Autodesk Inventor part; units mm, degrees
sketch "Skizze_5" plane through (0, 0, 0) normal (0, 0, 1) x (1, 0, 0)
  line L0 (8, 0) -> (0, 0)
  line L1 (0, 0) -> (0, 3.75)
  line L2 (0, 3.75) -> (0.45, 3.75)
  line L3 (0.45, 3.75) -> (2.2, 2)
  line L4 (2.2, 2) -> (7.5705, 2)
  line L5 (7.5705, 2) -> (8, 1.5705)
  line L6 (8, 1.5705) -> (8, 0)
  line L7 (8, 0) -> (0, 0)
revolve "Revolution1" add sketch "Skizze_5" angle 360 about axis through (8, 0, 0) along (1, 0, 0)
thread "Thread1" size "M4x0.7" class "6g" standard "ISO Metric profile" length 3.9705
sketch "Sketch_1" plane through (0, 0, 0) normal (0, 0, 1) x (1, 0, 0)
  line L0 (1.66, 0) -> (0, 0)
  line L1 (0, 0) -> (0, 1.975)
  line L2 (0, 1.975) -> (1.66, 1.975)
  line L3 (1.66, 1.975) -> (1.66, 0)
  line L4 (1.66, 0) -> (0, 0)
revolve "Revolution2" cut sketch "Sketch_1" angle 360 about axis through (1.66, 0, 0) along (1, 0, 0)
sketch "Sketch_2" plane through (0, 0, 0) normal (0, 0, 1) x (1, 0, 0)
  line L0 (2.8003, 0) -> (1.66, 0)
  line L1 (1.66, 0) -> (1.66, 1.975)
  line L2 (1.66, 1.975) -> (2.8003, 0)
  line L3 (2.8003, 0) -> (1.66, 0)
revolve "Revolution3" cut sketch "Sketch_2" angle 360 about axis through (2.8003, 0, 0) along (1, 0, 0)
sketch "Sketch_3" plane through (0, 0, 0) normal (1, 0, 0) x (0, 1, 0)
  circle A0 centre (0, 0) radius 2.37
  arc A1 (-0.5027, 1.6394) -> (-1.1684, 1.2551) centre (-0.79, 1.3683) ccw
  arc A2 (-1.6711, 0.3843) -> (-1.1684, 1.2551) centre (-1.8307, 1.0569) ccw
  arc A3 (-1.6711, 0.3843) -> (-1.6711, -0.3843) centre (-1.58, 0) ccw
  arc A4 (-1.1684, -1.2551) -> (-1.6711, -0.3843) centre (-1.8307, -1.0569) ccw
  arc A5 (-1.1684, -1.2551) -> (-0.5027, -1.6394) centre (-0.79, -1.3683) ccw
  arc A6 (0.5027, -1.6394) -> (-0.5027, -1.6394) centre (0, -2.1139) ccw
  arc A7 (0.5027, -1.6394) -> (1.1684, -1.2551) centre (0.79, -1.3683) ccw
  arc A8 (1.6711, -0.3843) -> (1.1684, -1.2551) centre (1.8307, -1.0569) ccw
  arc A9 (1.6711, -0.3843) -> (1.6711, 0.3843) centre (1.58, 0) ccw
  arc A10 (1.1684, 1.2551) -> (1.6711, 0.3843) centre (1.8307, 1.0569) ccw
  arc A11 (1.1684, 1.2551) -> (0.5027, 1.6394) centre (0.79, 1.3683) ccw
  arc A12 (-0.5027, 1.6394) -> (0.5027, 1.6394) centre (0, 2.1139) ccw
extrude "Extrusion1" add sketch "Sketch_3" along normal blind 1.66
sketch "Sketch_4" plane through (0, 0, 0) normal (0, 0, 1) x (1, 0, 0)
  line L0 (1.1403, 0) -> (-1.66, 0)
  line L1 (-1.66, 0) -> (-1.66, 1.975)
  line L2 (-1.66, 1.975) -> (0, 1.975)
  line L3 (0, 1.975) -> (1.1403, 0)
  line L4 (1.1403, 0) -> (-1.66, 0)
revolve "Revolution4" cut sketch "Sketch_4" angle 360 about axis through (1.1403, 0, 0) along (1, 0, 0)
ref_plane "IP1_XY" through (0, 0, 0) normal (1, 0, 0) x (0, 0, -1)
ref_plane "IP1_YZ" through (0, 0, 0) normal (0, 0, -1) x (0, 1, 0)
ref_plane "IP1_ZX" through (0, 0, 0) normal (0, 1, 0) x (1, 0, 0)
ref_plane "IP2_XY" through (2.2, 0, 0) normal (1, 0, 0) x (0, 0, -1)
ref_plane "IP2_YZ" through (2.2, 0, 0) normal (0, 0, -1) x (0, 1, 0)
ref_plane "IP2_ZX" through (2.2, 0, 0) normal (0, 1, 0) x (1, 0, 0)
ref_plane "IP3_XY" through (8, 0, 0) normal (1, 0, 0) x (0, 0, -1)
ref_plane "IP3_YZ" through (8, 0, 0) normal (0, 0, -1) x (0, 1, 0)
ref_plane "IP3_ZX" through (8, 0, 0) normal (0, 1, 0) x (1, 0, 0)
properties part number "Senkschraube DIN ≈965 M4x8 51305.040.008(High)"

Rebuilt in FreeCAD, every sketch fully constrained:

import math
import FreeCAD as App
import Part
import Sketcher

V = App.Vector
Q = App.Units.Quantity


def add_polygon(sketch, points):
    """Adds a closed chain of lines whose ends are joined by coincident constraints."""
    first, n = sketch.GeometryCount, len(points)
    for a, b in zip(points, points[1:] + points[:1]):
        sketch.addGeometry(Part.LineSegment(App.Vector(*a, 0), App.Vector(*b, 0)), False)
    for i in range(n):
        sketch.addConstraint(Sketcher.Constraint("Coincident", first + i, 2, first + (i + 1) % n, 1))

doc = App.newDocument("Part")
body = doc.addObject("PartDesign::Body", "Body")

# Sketch on XY plane
sketch1 = doc.addObject("Sketcher::SketchObject", "Sketch")
body.addObject(sketch1)
sketch1.AttachmentSupport = (doc.XY_Plane, [""])
sketch1.MapMode = "FlatFace"
add_polygon(sketch1, [(0, 0), (8, 0), (8, 1.57), (7.57, 2), (2.2, 2), (0.45, 3.75), (0, 3.75)])  # lines 0-6
sketch1.addConstraint(Sketcher.Constraint("Horizontal", 0))
sketch1.addConstraint(Sketcher.Constraint("Vertical", 1))
sketch1.addConstraint(Sketcher.Constraint("Horizontal", 3))
sketch1.addConstraint(Sketcher.Constraint("Horizontal", 5))
sketch1.addConstraint(Sketcher.Constraint("Vertical", 6))
sketch1.addConstraint(Sketcher.Constraint("Coincident", 6, 2, -1, 1))
sketch1.addConstraint(Sketcher.Constraint("Parallel", 2, 4))
sketch1.addConstraint(Sketcher.Constraint("DistanceX", 0, 1, 0, 2, 8.0))
sketch1.addConstraint(Sketcher.Constraint("Angle", 2, Q("135 deg")))
sketch1.addConstraint(Sketcher.Constraint("DistanceY", -1, 1, 2, 2, 2.0))
sketch1.addConstraint(Sketcher.Constraint("DistanceX", 5, 2, 5, 1, 0.45))
sketch1.addConstraint(Sketcher.Constraint("DistanceY", 6, 2, 6, 1, 3.75))
sketch1.addConstraint(Sketcher.Constraint("DistanceX", 3, 2, 3, 1, 5.3705))
revolution = doc.addObject("PartDesign::Revolution", "Revolution")
body.addObject(revolution)
revolution.Profile = sketch1
revolution.ReferenceAxis = (sketch1, ["H_Axis"])
revolution.Angle = 360

# Sketch on XY plane
sketch2 = doc.addObject("Sketcher::SketchObject", "Sketch001")
body.addObject(sketch2)
sketch2.AttachmentSupport = (doc.XY_Plane, [""])
sketch2.MapMode = "FlatFace"
add_polygon(sketch2, [(0, 0), (1.7, 0), (1.7, 2), (0, 2)])  # lines 0-3
sketch2.addConstraint(Sketcher.Constraint("Horizontal", 0))
sketch2.addConstraint(Sketcher.Constraint("Vertical", 1))
sketch2.addConstraint(Sketcher.Constraint("Horizontal", 2))
sketch2.addConstraint(Sketcher.Constraint("Vertical", 3))
sketch2.addConstraint(Sketcher.Constraint("Coincident", 3, 2, -1, 1))
sketch2.addConstraint(Sketcher.Constraint("DistanceX", 0, 1, 0, 2, 1.66))
sketch2.addConstraint(Sketcher.Constraint("DistanceY", 1, 1, 1, 2, 1.975))
groove = doc.addObject("PartDesign::Groove", "Groove")
body.addObject(groove)
groove.Profile = sketch2
groove.ReferenceAxis = (sketch2, ["H_Axis"])
groove.Angle = 360

# Sketch on XY plane
sketch3 = doc.addObject("Sketcher::SketchObject", "Sketch002")
body.addObject(sketch3)
sketch3.AttachmentSupport = (doc.XY_Plane, [""])
sketch3.MapMode = "FlatFace"
add_polygon(sketch3, [(1.7, 0), (2.8, 0), (1.7, 2)])  # lines 0-2
sketch3.addConstraint(Sketcher.Constraint("Horizontal", 0))
sketch3.addConstraint(Sketcher.Constraint("Vertical", 2))
sketch3.addConstraint(Sketcher.Constraint("PointOnObject", 0, 2, -1))
sketch3.addConstraint(Sketcher.Constraint("Angle", 1, Q("120.0007 deg")))
sketch3.addConstraint(Sketcher.Constraint("DistanceY", 2, 2, 2, 1, 1.975))
sketch3.addConstraint(Sketcher.Constraint("DistanceX", -1, 1, 1, 2, 1.66))
groove2 = doc.addObject("PartDesign::Groove", "Groove001")
body.addObject(groove2)
groove2.Profile = sketch3
groove2.ReferenceAxis = (sketch3, ["H_Axis"])
groove2.Angle = 360

# Sketch on YZ plane
sketch4 = doc.addObject("Sketcher::SketchObject", "Sketch003")
body.addObject(sketch4)
sketch4.AttachmentSupport = (doc.YZ_Plane, [""])
sketch4.MapMode = "FlatFace"
sketch4.addGeometry(Part.Circle(V(0, 0, 0), V(0, 0, 1), 2.37), False)
sketch4.addGeometry(Part.ArcOfCircle(Part.Circle(V(-0.79, 1.37, 0), V(0, 0, 1), 0.4), math.radians(43), math.radians(197)), False)
sketch4.addGeometry(Part.ArcOfCircle(Part.Circle(V(0, 2.11, 0), V(0, 0, 1), 0.69), math.radians(-137), math.radians(-43)), False)
sketch4.addGeometry(Part.ArcOfCircle(Part.Circle(V(0.79, 1.37, 0), V(0, 0, 1), 0.39), math.radians(-17), math.radians(137)), False)
sketch4.addGeometry(Part.ArcOfCircle(Part.Circle(V(1.83, 1.06, 0), V(0, 0, 1), 0.69), math.radians(163), math.radians(257)), False)
sketch4.addGeometry(Part.ArcOfCircle(Part.Circle(V(1.58, 0, 0), V(0, 0, 1), 0.39), math.radians(-77), math.radians(77)), False)
sketch4.addGeometry(Part.ArcOfCircle(Part.Circle(V(1.83, -1.06, 0), V(0, 0, 1), 0.69), math.radians(103), math.radians(197)), False)
sketch4.addGeometry(Part.ArcOfCircle(Part.Circle(V(0.79, -1.37, 0), V(0, 0, 1), 0.4), math.radians(-137), math.radians(17)), False)
sketch4.addGeometry(Part.ArcOfCircle(Part.Circle(V(0, -2.11, 0), V(0, 0, 1), 0.69), math.radians(43), math.radians(137)), False)
sketch4.addGeometry(Part.ArcOfCircle(Part.Circle(V(-0.79, -1.37, 0), V(0, 0, 1), 0.39), math.radians(163), math.radians(317)), False)
sketch4.addGeometry(Part.ArcOfCircle(Part.Circle(V(-1.83, -1.06, 0), V(0, 0, 1), 0.69), math.radians(-17), math.radians(77)), False)
sketch4.addGeometry(Part.ArcOfCircle(Part.Circle(V(-1.58, 0, 0), V(0, 0, 1), 0.39), math.radians(103), math.radians(257)), False)
sketch4.addGeometry(Part.ArcOfCircle(Part.Circle(V(-1.83, 1.06, 0), V(0, 0, 1), 0.69), math.radians(-77), math.radians(17)), False)
sketch4.addConstraint(Sketcher.Constraint("Tangent", 1, 1, 2, 1))
sketch4.addConstraint(Sketcher.Constraint("Tangent", 2, 2, 3, 2))
sketch4.addConstraint(Sketcher.Constraint("Tangent", 3, 1, 4, 1))
sketch4.addConstraint(Sketcher.Constraint("Tangent", 4, 2, 5, 2))
sketch4.addConstraint(Sketcher.Constraint("Tangent", 5, 1, 6, 1))
sketch4.addConstraint(Sketcher.Constraint("Tangent", 6, 2, 7, 2))
sketch4.addConstraint(Sketcher.Constraint("Tangent", 7, 1, 8, 1))
sketch4.addConstraint(Sketcher.Constraint("Tangent", 8, 2, 9, 2))
sketch4.addConstraint(Sketcher.Constraint("Tangent", 9, 1, 10, 1))
sketch4.addConstraint(Sketcher.Constraint("Tangent", 10, 2, 11, 2))
sketch4.addConstraint(Sketcher.Constraint("Tangent", 11, 1, 12, 1))
sketch4.addConstraint(Sketcher.Constraint("Tangent", 12, 2, 1, 2))
sketch4.addConstraint(Sketcher.Constraint("Coincident", 0, 3, -1, 1))
sketch4.addConstraint(Sketcher.Constraint("Equal", 1, 3))
sketch4.addConstraint(Sketcher.Constraint("Equal", 2, 4))
sketch4.addConstraint(Sketcher.Constraint("Equal", 3, 5))
sketch4.addConstraint(Sketcher.Constraint("Equal", 4, 6))
sketch4.addConstraint(Sketcher.Constraint("Equal", 5, 7))
sketch4.addConstraint(Sketcher.Constraint("Equal", 6, 8))
sketch4.addConstraint(Sketcher.Constraint("Equal", 7, 9))
sketch4.addConstraint(Sketcher.Constraint("Equal", 8, 10))
sketch4.addConstraint(Sketcher.Constraint("Equal", 9, 11))
sketch4.addConstraint(Sketcher.Constraint("Equal", 10, 12))
sketch4.addConstraint(Sketcher.Constraint("Symmetric", 1, 3, 7, 3, -1, 1))
sketch4.addConstraint(Sketcher.Constraint("Symmetric", 3, 3, 9, 3, -1, 1))
sketch4.addConstraint(Sketcher.Constraint("Symmetric", 5, 3, 11, 3, -1, 1))
sketch4.addConstraint(Sketcher.Constraint("Symmetric", 1, 3, 3, 3, -2))
sketch4.addConstraint(Sketcher.Constraint("PointOnObject", 5, 3, -1))
sketch4.addConstraint(Sketcher.Constraint("Diameter", 0, 4.74))
sketch4.addConstraint(Sketcher.Constraint("Radius", 1, 0.395))
sketch4.addConstraint(Sketcher.Constraint("Radius", 2, 0.6913))
sketch4.addConstraint(Sketcher.Constraint("DistanceX", 1, 3, -1, 1, 0.79))
sketch4.addConstraint(Sketcher.Constraint("DistanceX", -1, 1, 5, 3, 1.58))
sketch4.addConstraint(Sketcher.Constraint("DistanceY", -1, 1, 2, 3, 2.114))
pad1 = doc.addObject("PartDesign::Pad", "Pad")
body.addObject(pad1)
pad1.Profile = sketch4
pad1.Length = 1.66

# Sketch on XY plane
sketch5 = doc.addObject("Sketcher::SketchObject", "Sketch004")
body.addObject(sketch5)
sketch5.AttachmentSupport = (doc.XY_Plane, [""])
sketch5.MapMode = "FlatFace"
add_polygon(sketch5, [(-1.7, 0), (1.1, 0), (0, 2), (-1.7, 2)])  # lines 0-3
sketch5.addConstraint(Sketcher.Constraint("Horizontal", 0))
sketch5.addConstraint(Sketcher.Constraint("Horizontal", 2))
sketch5.addConstraint(Sketcher.Constraint("Vertical", 3))
sketch5.addConstraint(Sketcher.Constraint("PointOnObject", 0, 2, -1))
sketch5.addConstraint(Sketcher.Constraint("PointOnObject", 1, 2, -2))
sketch5.addConstraint(Sketcher.Constraint("Angle", 1, Q("120.0007 deg")))
sketch5.addConstraint(Sketcher.Constraint("DistanceX", 2, 2, 2, 1, 1.66))
sketch5.addConstraint(Sketcher.Constraint("DistanceY", 3, 2, 3, 1, 1.975))
groove3 = doc.addObject("PartDesign::Groove", "Groove002")
body.addObject(groove3)
groove3.Profile = sketch5
groove3.ReferenceAxis = (sketch5, ["H_Axis"])
groove3.Angle = 360

doc.recompute()
